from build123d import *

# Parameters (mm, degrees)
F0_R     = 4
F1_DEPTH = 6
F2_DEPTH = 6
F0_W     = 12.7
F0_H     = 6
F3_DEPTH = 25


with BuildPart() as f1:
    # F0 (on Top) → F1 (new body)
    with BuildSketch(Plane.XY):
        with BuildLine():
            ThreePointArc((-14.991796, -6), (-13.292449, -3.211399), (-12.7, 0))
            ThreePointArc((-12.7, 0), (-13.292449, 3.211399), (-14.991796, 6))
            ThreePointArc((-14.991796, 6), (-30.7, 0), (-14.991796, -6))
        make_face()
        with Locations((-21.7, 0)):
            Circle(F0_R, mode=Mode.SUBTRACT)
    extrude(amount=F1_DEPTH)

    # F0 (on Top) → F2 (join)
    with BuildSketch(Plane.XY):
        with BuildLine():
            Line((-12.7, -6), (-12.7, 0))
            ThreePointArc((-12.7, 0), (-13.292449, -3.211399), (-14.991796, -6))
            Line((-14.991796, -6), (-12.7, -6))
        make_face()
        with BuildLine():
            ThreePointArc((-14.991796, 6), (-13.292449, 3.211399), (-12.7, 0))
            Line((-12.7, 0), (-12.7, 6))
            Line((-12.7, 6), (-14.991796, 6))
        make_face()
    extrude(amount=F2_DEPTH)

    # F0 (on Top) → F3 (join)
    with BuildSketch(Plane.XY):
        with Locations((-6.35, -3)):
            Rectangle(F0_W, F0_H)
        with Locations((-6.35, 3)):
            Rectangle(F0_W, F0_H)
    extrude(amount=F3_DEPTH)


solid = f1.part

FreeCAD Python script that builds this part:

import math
import FreeCAD as App
import Part
import Sketcher

V = App.Vector

doc = App.newDocument("Part")
params = doc.addObject("Spreadsheet::Sheet", "Params")
for row, (alias, value) in enumerate([
    ("sketch1_diameter", "8 mm"),
    ("sketch1_radius", "9 mm"),
    ("pad1_length", "6 mm"),
    ("sketch2_height", "6 mm"),
    ("pad2_length", "6 mm"),
    ("sketch3_height", "12 mm"),
    ("sketch3_width", "12.7 mm"),
    ("pad3_length", "25 mm"),
], start=1):
    params.set(f"A{row}", alias)
    params.set(f"B{row}", "=" + value)
    params.setAlias(f"B{row}", alias)

body = doc.addObject("PartDesign::Body", "Body")

# Sketch on XY plane
sketch1 = body.newObject("Sketcher::SketchObject", "Sketch")
sketch1.AttachmentSupport = (doc.getObject("XY_Plane"), [""])
sketch1.MapMode = "FlatFace"
sketch1.addGeometry([
    Part.ArcOfCircle(Part.Circle(V(-21.7, 0, 0), V(0, 0, 1), 9), math.radians(-42), math.radians(0)),
    Part.ArcOfCircle(Part.Circle(V(-21.7, 0, 0), V(0, 0, 1), 9), math.radians(0), math.radians(42)),
    Part.ArcOfCircle(Part.Circle(V(-21.7, 0, 0), V(0, 0, 1), 9), math.radians(42), math.radians(318)),
    Part.Circle(V(-21.7, 0, 0), V(0, 0, 1), 4),
], False)
sketch1.addConstraint([
    Sketcher.Constraint("Tangent", 0, 2, 1, 1),
    Sketcher.Constraint("Tangent", 1, 2, 2, 1),
    Sketcher.Constraint("Tangent", 2, 2, 0, 1),
    Sketcher.Constraint("Coincident", 3, 3, 0, 3),
    Sketcher.Constraint("Symmetric", 1, 2, 2, 2, -1),
    Sketcher.Constraint("PointOnObject", 0, 2, -1),
    Sketcher.Constraint("Diameter", 3, 8.0),
    Sketcher.Constraint("Radius", 2, 9.0),
    Sketcher.Constraint("DistanceY", -1, 1, 1, 2, 6.0),
    Sketcher.Constraint("DistanceX", 2, 3, -1, 1, 21.7),
])
sketch1.setExpression("Constraints[6]", "Params.sketch1_diameter")
sketch1.setExpression("Constraints[7]", "Params.sketch1_radius")
pad1 = body.newObject("PartDesign::Pad", "Pad")
pad1.Profile = sketch1
pad1.setExpression("Length", "Params.pad1_length")

# Sketch on XY plane
sketch2 = body.newObject("Sketcher::SketchObject", "Sketch001")
sketch2.AttachmentSupport = (doc.getObject("XY_Plane"), [""])
sketch2.MapMode = "FlatFace"
sketch2.addGeometry([
    Part.LineSegment(V(-12.7, -6, 0), V(-12.7, 0, 0)),  # 0
    Part.ArcOfCircle(Part.Circle(V(-21.7, 0, 0), V(0, 0, 1), 9), math.radians(-42), math.radians(0)),  # 1
    Part.LineSegment(V(-15, -6, 0), V(-12.7, -6, 0)),  # 2
    Part.ArcOfCircle(Part.Circle(V(-21.7, 0, 0), V(0, 0, 1), 9), math.radians(0), math.radians(42)),  # 3
    Part.LineSegment(V(-12.7, 0, 0), V(-12.7, 6, 0)),  # 4
    Part.LineSegment(V(-12.7, 6, 0), V(-15, 6, 0)),  # 5
], False)
sketch2.addConstraint([
    Sketcher.Constraint("Tangent", 0, 2, 1, 2),
    Sketcher.Constraint("Coincident", 1, 1, 2, 1),
    Sketcher.Constraint("Coincident", 2, 2, 0, 1),
    Sketcher.Constraint("Tangent", 3, 1, 4, 1),
    Sketcher.Constraint("Coincident", 4, 2, 5, 1),
    Sketcher.Constraint("Coincident", 5, 2, 3, 2),
    Sketcher.Constraint("Vertical", 0),
    Sketcher.Constraint("Horizontal", 2),
    Sketcher.Constraint("Vertical", 4),
    Sketcher.Constraint("Horizontal", 5),
    Sketcher.Constraint("Coincident", 3, 3, 1, 3),
    Sketcher.Constraint("Equal", 1, 3),
    Sketcher.Constraint("Symmetric", 1, 1, 5, 2, -1),
    Sketcher.Constraint("DistanceY", 0, 1, 0, 2, 6.0),
    Sketcher.Constraint("DistanceX", 0, 2, -1, 1, 12.7),
    Sketcher.Constraint("Radius", 1, 9.000002),
])
sketch2.setExpression("Constraints[13]", "Params.sketch2_height")
pad2 = body.newObject("PartDesign::Pad", "Pad001")
pad2.Profile = sketch2
pad2.setExpression("Length", "Params.pad2_length")

# Sketch on XY plane
sketch3 = body.newObject("Sketcher::SketchObject", "Sketch002")
sketch3.AttachmentSupport = (doc.getObject("XY_Plane"), [""])
sketch3.MapMode = "FlatFace"
sketch3.addGeometry([
    Part.LineSegment(V(-13, -6, 0), V(0, -6, 0)),
    Part.LineSegment(V(0, -6, 0), V(0, 6, 0)),
    Part.LineSegment(V(0, 6, 0), V(-13, 6, 0)),
    Part.LineSegment(V(-13, 6, 0), V(-13, -6, 0)),
], False)
sketch3.addConstraint([
    Sketcher.Constraint("Coincident", 0, 2, 1, 1),
    Sketcher.Constraint("Coincident", 1, 2, 2, 1),
    Sketcher.Constraint("Coincident", 2, 2, 3, 1),
    Sketcher.Constraint("Coincident", 3, 2, 0, 1),
    Sketcher.Constraint("Horizontal", 0),
    Sketcher.Constraint("Vertical", 1),
    Sketcher.Constraint("Horizontal", 2),
    Sketcher.Constraint("Vertical", 3),
    Sketcher.Constraint("Symmetric", 0, 2, 1, 2, -1, 1),
    Sketcher.Constraint("DistanceY", 1, 1, 1, 2, 12.0),
    Sketcher.Constraint("DistanceX", 0, 1, 0, 2, 12.7),
])
sketch3.setExpression("Constraints[9]", "Params.sketch3_height")
sketch3.setExpression("Constraints[10]", "Params.sketch3_width")
pad3 = body.newObject("PartDesign::Pad", "Pad002")
pad3.Profile = sketch3
pad3.setExpression("Length", "Params.pad3_length")

doc.recompute()
